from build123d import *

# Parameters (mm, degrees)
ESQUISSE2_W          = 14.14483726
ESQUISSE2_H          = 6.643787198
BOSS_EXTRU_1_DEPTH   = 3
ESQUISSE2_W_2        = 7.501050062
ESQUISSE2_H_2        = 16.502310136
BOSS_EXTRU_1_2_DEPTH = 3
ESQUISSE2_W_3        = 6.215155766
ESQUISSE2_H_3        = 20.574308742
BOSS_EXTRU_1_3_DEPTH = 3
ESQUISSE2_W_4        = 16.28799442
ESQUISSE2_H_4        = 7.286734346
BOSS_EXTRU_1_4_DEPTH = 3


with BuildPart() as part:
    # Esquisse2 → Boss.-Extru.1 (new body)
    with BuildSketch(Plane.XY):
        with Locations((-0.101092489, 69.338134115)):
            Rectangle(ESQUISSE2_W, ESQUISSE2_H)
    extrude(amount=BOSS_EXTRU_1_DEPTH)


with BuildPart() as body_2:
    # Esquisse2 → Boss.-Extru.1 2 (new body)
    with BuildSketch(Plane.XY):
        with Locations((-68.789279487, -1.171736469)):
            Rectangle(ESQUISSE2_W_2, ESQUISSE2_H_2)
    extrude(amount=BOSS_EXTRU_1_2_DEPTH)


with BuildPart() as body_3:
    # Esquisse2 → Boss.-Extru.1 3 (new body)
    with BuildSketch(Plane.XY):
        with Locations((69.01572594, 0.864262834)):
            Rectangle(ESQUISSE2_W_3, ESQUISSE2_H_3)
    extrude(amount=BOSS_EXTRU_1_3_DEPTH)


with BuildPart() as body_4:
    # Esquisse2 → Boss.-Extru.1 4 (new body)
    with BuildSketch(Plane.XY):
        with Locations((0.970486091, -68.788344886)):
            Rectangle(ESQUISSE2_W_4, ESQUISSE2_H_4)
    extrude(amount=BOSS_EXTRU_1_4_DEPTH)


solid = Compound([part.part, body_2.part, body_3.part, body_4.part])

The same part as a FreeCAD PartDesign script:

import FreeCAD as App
import Part
import Sketcher
from FreeCAD import Vector

doc = App.newDocument("Part")
body = doc.addObject("PartDesign::Body", "Body")

# Sketch on XY plane
sketch1 = doc.addObject("Sketcher::SketchObject", "Sketch")
body.addObject(sketch1)
sketch1.AttachmentSupport = (doc.XY_Plane, [""])
sketch1.MapMode = "FlatFace"
sketch1.addGeometry([
    Part.LineSegment(Vector(-7.173511, 72.660028, 0), Vector(-7.173511, 66.016241, 0)),
    Part.LineSegment(Vector(-7.173511, 66.016241, 0), Vector(6.971326, 66.016241, 0)),
    Part.LineSegment(Vector(6.971326, 66.016241, 0), Vector(6.971326, 72.660028, 0)),
    Part.LineSegment(Vector(6.971326, 72.660028, 0), Vector(-7.173511, 72.660028, 0)),
], False)
sketch1.addConstraint([
    Sketcher.Constraint("Coincident", 0, 2, 1, 1),
    Sketcher.Constraint("Coincident", 1, 2, 2, 1),
    Sketcher.Constraint("Coincident", 2, 2, 3, 1),
    Sketcher.Constraint("Coincident", 3, 2, 0, 1),
    Sketcher.Constraint("Vertical", 0),
    Sketcher.Constraint("Horizontal", 1),
    Sketcher.Constraint("Vertical", 2),
    Sketcher.Constraint("Horizontal", 3),
    Sketcher.Constraint("DistanceX", 1, 1, 1, 2, 14.144837),
    Sketcher.Constraint("DistanceY", 0, 2, 0, 1, 6.643787),
    Sketcher.Constraint("DistanceX", 0, 2, -1, 1, 7.173511),
    Sketcher.Constraint("DistanceY", -1, 1, 0, 2, 66.016241),
])
pad1 = doc.addObject("PartDesign::Pad", "Pad")
body.addObject(pad1)
pad1.Profile = sketch1
pad1.Length = 3
body2 = doc.addObject("PartDesign::Body", "Body001")

# Sketch on XY plane
sketch2 = doc.addObject("Sketcher::SketchObject", "Sketch001")
body2.addObject(sketch2)
sketch2.AttachmentSupport = (doc.getObject("XY_Plane001"), [""])
sketch2.MapMode = "FlatFace"
sketch2.addGeometry([
    Part.LineSegment(Vector(-72.539805, 7.079419, 0), Vector(-72.539805, -9.422892, 0)),
    Part.LineSegment(Vector(-72.539805, -9.422892, 0), Vector(-65.038754, -9.422892, 0)),
    Part.LineSegment(Vector(-65.038754, -9.422892, 0), Vector(-65.038754, 7.079419, 0)),
    Part.LineSegment(Vector(-65.038754, 7.079419, 0), Vector(-72.539805, 7.079419, 0)),
], False)
sketch2.addConstraint([
    Sketcher.Constraint("Coincident", 0, 2, 1, 1),
    Sketcher.Constraint("Coincident", 1, 2, 2, 1),
    Sketcher.Constraint("Coincident", 2, 2, 3, 1),
    Sketcher.Constraint("Coincident", 3, 2, 0, 1),
    Sketcher.Constraint("Vertical", 0),
    Sketcher.Constraint("Horizontal", 1),
    Sketcher.Constraint("Vertical", 2),
    Sketcher.Constraint("Horizontal", 3),
    Sketcher.Constraint("DistanceX", 1, 1, 1, 2, 7.50105),
    Sketcher.Constraint("DistanceY", 0, 2, 0, 1, 16.50231),
    Sketcher.Constraint("DistanceY", 0, 2, -1, 1, 9.422892),
    Sketcher.Constraint("DistanceX", 0, 2, -1, 1, 72.539805),
])
pad2 = doc.addObject("PartDesign::Pad", "Pad001")
body2.addObject(pad2)
pad2.Profile = sketch2
pad2.Length = 3
body3 = doc.addObject("PartDesign::Body", "Body002")

# Sketch on XY plane
sketch3 = doc.addObject("Sketcher::SketchObject", "Sketch002")
body3.addObject(sketch3)
sketch3.AttachmentSupport = (doc.getObject("XY_Plane002"), [""])
sketch3.MapMode = "FlatFace"
sketch3.addGeometry([
    Part.LineSegment(Vector(65.908148, 11.151417, 0), Vector(65.908148, -9.422892, 0)),
    Part.LineSegment(Vector(65.908148, -9.422892, 0), Vector(72.123304, -9.422892, 0)),
    Part.LineSegment(Vector(72.123304, -9.422892, 0), Vector(72.123304, 11.151417, 0)),
    Part.LineSegment(Vector(72.123304, 11.151417, 0), Vector(65.908148, 11.151417, 0)),
], False)
sketch3.addConstraint([
    Sketcher.Constraint("Coincident", 0, 2, 1, 1),
    Sketcher.Constraint("Coincident", 1, 2, 2, 1),
    Sketcher.Constraint("Coincident", 2, 2, 3, 1),
    Sketcher.Constraint("Coincident", 3, 2, 0, 1),
    Sketcher.Constraint("Vertical", 0),
    Sketcher.Constraint("Horizontal", 1),
    Sketcher.Constraint("Vertical", 2),
    Sketcher.Constraint("Horizontal", 3),
    Sketcher.Constraint("DistanceY", 0, 2, 0, 1, 20.574309),
    Sketcher.Constraint("DistanceX", 1, 1, 1, 2, 6.215156),
    Sketcher.Constraint("DistanceX", -1, 1, 0, 2, 65.908148),
    Sketcher.Constraint("DistanceY", 0, 2, -1, 1, 9.422892),
])
pad3 = doc.addObject("PartDesign::Pad", "Pad002")
body3.addObject(pad3)
pad3.Profile = sketch3
pad3.Length = 3
body4 = doc.addObject("PartDesign::Body", "Body003")

# Sketch on XY plane
sketch4 = doc.addObject("Sketcher::SketchObject", "Sketch003")
body4.addObject(sketch4)
sketch4.AttachmentSupport = (doc.getObject("XY_Plane003"), [""])
sketch4.MapMode = "FlatFace"
sketch4.addGeometry([
    Part.LineSegment(Vector(-7.173511, -65.144978, 0), Vector(-7.173511, -72.431712, 0)),
    Part.LineSegment(Vector(-7.173511, -72.431712, 0), Vector(9.114483, -72.431712, 0)),
    Part.LineSegment(Vector(9.114483, -72.431712, 0), Vector(9.114483, -65.144978, 0)),
    Part.LineSegment(Vector(9.114483, -65.144978, 0), Vector(-7.173511, -65.144978, 0)),
], False)
sketch4.addConstraint([
    Sketcher.Constraint("Coincident", 0, 2, 1, 1),
    Sketcher.Constraint("Coincident", 1, 2, 2, 1),
    Sketcher.Constraint("Coincident", 2, 2, 3, 1),
    Sketcher.Constraint("Coincident", 3, 2, 0, 1),
    Sketcher.Constraint("Vertical", 0),
    Sketcher.Constraint("Horizontal", 1),
    Sketcher.Constraint("Vertical", 2),
    Sketcher.Constraint("Horizontal", 3),
    Sketcher.Constraint("DistanceX", 1, 1, 1, 2, 16.287994),
    Sketcher.Constraint("DistanceY", 0, 2, 0, 1, 7.286734),
    Sketcher.Constraint("DistanceX", 0, 2, -1, 1, 7.173511),
    Sketcher.Constraint("DistanceY", 0, 2, -1, 1, 72.431712),
])
pad4 = doc.addObject("PartDesign::Pad", "Pad003")
body4.addObject(pad4)
pad4.Profile = sketch4
pad4.Length = 3

doc.recompute()
